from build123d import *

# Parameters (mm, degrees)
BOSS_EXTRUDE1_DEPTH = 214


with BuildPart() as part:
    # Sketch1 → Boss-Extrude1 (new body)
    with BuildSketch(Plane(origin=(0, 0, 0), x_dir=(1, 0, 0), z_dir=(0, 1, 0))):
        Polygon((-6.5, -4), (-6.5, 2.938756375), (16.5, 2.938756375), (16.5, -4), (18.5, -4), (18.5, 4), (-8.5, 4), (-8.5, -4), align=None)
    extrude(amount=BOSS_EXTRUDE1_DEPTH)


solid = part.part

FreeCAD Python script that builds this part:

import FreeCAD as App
import Part
import Sketcher

V = App.Vector
Q = App.Units.Quantity


def add_polygon(sketch, points):
    """Adds a closed chain of lines whose ends are joined by coincident constraints."""
    first, n = sketch.GeometryCount, len(points)
    for a, b in zip(points, points[1:] + points[:1]):
        sketch.addGeometry(Part.LineSegment(App.Vector(*a, 0), App.Vector(*b, 0)), False)
    for i in range(n):
        sketch.addConstraint(Sketcher.Constraint("Coincident", first + i, 2, first + (i + 1) % n, 1))

doc = App.newDocument("Part")
params = doc.addObject("Spreadsheet::Sheet", "Params")
for row, (alias, value) in enumerate([
    ("sketch1_width", "23 mm"),
    ("sketch1_width2", "2 mm"),
    ("sketch1_height", "8 mm"),
    ("pad1_length", "214 mm"),
], start=1):
    params.set(f"A{row}", alias)
    params.set(f"B{row}", "=" + value)
    params.setAlias(f"B{row}", alias)

body = doc.addObject("PartDesign::Body", "Body")

sketch1 = body.newObject("Sketcher::SketchObject", "Sketch")
sketch1.AttachmentSupport = (doc.getObject("XZ_Plane"), [""])
sketch1.MapMode = "FlatFace"
add_polygon(sketch1, [(-6.5, 4), (-6.5, -2.9), (16.5, -2.9), (16.5, 4), (18.5, 4), (18.5, -4), (-8.5, -4), (-8.5, 4)])
sketch1.addConstraint([
    Sketcher.Constraint("Vertical", 0),
    Sketcher.Constraint("Horizontal", 1),
    Sketcher.Constraint("Vertical", 2),
    Sketcher.Constraint("Horizontal", 3),
    Sketcher.Constraint("Vertical", 4),
    Sketcher.Constraint("Horizontal", 5),
    Sketcher.Constraint("Vertical", 6),
    Sketcher.Constraint("Horizontal", 7),
    Sketcher.Constraint("Horizontal", 3, 2, 6, 2),
    Sketcher.Constraint("Equal", 3, 7),
    Sketcher.Constraint("DistanceX", 1, 1, 1, 2, Q("23 mm")),
    Sketcher.Constraint("DistanceX", 3, 1, 3, 2, Q("2 mm")),
    Sketcher.Constraint("DistanceY", 4, 2, 4, 1, Q("8 mm")),
    Sketcher.Constraint("DistanceY", -1, 1, 2, 2, Q("4 mm")),
    Sketcher.Constraint("DistanceX", 0, 2, -1, 1, Q("6.5 mm")),
    Sketcher.Constraint("DistanceY", 0, 2, 0, 1, Q("6.938756 mm")),
])
sketch1.setExpression("Constraints[18]", "Params.sketch1_width")
sketch1.setExpression("Constraints[19]", "Params.sketch1_width2")
sketch1.setExpression("Constraints[20]", "Params.sketch1_height")
pad1 = body.newObject("PartDesign::Pad", "Pad")
pad1.Profile = sketch1
pad1.setExpression("Length", "Params.pad1_length")
pad1.Reversed = True

doc.recompute()
